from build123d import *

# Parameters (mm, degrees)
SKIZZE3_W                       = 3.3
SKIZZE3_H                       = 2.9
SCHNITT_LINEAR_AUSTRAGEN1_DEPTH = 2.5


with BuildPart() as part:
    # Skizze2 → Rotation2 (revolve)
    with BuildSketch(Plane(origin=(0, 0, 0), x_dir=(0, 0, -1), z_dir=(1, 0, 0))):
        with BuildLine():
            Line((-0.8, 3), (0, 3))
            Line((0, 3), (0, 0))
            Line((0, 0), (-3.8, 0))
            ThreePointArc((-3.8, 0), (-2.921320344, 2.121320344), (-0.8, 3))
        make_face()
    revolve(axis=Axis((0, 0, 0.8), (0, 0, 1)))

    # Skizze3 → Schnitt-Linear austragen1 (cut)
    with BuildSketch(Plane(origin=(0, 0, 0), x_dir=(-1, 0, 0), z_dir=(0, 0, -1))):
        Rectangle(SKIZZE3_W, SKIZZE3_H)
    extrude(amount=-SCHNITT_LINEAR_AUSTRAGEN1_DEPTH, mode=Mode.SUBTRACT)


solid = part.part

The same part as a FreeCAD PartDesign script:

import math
import FreeCAD as App
import Part
import Sketcher
from FreeCAD import Vector


def add_polygon(sketch, points):
    """Adds a closed chain of lines whose ends are joined by coincident constraints."""
    first, n = sketch.GeometryCount, len(points)
    for a, b in zip(points, points[1:] + points[:1]):
        sketch.addGeometry(Part.LineSegment(App.Vector(*a, 0), App.Vector(*b, 0)), False)
    for i in range(n):
        sketch.addConstraint(Sketcher.Constraint("Coincident", first + i, 2, first + (i + 1) % n, 1))

doc = App.newDocument("Part")
params = doc.addObject("Spreadsheet::Sheet", "Params")
for row, (alias, value) in enumerate([
    ("sketch1_radius", "3 mm"),
    ("sketch1_height", "0.8 mm"),
    ("revolution_angle", "360 deg"),
    ("sketch2_width", "3.3 mm"),
    ("sketch2_height", "2.9 mm"),
    ("pocket1_length", "2.5 mm"),
], start=1):
    params.set(f"A{row}", alias)
    params.set(f"B{row}", "=" + value)
    params.setAlias(f"B{row}", alias)

body = doc.addObject("PartDesign::Body", "Body")

# Sketch on YZ plane
sketch1 = doc.addObject("Sketcher::SketchObject", "Sketch")
body.addObject(sketch1)
sketch1.AttachmentSupport = (doc.YZ_Plane, [""])
sketch1.MapMode = "FlatFace"
sketch1.addGeometry([
    Part.LineSegment(Vector(3, 0, 0), Vector(3, 0.8, 0)),
    Part.ArcOfCircle(Part.Circle(Vector(0, 0.8, 0), Vector(0, 0, 1), 3), math.radians(0), math.radians(90)),
    Part.LineSegment(Vector(0, 3.8, 0), Vector(0, 0, 0)),
    Part.LineSegment(Vector(0, 0, 0), Vector(3, 0, 0)),
], False)
sketch1.addConstraint([
    Sketcher.Constraint("Tangent", 0, 2, 1, 1),
    Sketcher.Constraint("Coincident", 1, 2, 2, 1),
    Sketcher.Constraint("Coincident", 2, 2, 3, 1),
    Sketcher.Constraint("Coincident", 3, 2, 0, 1),
    Sketcher.Constraint("Vertical", 0),
    Sketcher.Constraint("Vertical", 2),
    Sketcher.Constraint("Horizontal", 3),
    Sketcher.Constraint("Coincident", 2, 2, -1, 1),
    Sketcher.Constraint("PointOnObject", 1, 3, -2),
    Sketcher.Constraint("Radius", 1, 3.0),
    Sketcher.Constraint("DistanceY", 0, 1, 0, 2, 0.8),
])
sketch1.setExpression("Constraints[9]", "Params.sketch1_radius")
sketch1.setExpression("Constraints[10]", "Params.sketch1_height")
revolution = doc.addObject("PartDesign::Revolution", "Revolution")
body.addObject(revolution)
revolution.Profile = sketch1
revolution.ReferenceAxis = (sketch1, ["V_Axis"])
revolution.setExpression("Angle", "Params.revolution_angle")

# Sketch on XY plane
sketch2 = doc.addObject("Sketcher::SketchObject", "Sketch001")
body.addObject(sketch2)
sketch2.AttachmentSupport = (doc.XY_Plane, [""])
sketch2.MapMode = "FlatFace"
add_polygon(sketch2, [(1.65, 1.45), (1.65, -1.45), (-1.65, -1.45), (-1.65, 1.45)])  # lines 0-3
sketch2.addConstraint([
    Sketcher.Constraint("Vertical", 0),
    Sketcher.Constraint("Horizontal", 1),
    Sketcher.Constraint("Vertical", 2),
    Sketcher.Constraint("Horizontal", 3),
    Sketcher.Constraint("Symmetric", 0, 2, 2, 2, -1, 1),
    Sketcher.Constraint("DistanceX", 1, 2, 1, 1, 3.3),
    Sketcher.Constraint("DistanceY", 0, 2, 0, 1, 2.9),
])
sketch2.setExpression("Constraints[9]", "Params.sketch2_width")
sketch2.setExpression("Constraints[10]", "Params.sketch2_height")
pocket1 = doc.addObject("PartDesign::Pocket", "Pocket")
body.addObject(pocket1)
pocket1.Profile = sketch2
pocket1.setExpression("Length", "Params.pocket1_length")
pocket1.Reversed = True

doc.recompute()
